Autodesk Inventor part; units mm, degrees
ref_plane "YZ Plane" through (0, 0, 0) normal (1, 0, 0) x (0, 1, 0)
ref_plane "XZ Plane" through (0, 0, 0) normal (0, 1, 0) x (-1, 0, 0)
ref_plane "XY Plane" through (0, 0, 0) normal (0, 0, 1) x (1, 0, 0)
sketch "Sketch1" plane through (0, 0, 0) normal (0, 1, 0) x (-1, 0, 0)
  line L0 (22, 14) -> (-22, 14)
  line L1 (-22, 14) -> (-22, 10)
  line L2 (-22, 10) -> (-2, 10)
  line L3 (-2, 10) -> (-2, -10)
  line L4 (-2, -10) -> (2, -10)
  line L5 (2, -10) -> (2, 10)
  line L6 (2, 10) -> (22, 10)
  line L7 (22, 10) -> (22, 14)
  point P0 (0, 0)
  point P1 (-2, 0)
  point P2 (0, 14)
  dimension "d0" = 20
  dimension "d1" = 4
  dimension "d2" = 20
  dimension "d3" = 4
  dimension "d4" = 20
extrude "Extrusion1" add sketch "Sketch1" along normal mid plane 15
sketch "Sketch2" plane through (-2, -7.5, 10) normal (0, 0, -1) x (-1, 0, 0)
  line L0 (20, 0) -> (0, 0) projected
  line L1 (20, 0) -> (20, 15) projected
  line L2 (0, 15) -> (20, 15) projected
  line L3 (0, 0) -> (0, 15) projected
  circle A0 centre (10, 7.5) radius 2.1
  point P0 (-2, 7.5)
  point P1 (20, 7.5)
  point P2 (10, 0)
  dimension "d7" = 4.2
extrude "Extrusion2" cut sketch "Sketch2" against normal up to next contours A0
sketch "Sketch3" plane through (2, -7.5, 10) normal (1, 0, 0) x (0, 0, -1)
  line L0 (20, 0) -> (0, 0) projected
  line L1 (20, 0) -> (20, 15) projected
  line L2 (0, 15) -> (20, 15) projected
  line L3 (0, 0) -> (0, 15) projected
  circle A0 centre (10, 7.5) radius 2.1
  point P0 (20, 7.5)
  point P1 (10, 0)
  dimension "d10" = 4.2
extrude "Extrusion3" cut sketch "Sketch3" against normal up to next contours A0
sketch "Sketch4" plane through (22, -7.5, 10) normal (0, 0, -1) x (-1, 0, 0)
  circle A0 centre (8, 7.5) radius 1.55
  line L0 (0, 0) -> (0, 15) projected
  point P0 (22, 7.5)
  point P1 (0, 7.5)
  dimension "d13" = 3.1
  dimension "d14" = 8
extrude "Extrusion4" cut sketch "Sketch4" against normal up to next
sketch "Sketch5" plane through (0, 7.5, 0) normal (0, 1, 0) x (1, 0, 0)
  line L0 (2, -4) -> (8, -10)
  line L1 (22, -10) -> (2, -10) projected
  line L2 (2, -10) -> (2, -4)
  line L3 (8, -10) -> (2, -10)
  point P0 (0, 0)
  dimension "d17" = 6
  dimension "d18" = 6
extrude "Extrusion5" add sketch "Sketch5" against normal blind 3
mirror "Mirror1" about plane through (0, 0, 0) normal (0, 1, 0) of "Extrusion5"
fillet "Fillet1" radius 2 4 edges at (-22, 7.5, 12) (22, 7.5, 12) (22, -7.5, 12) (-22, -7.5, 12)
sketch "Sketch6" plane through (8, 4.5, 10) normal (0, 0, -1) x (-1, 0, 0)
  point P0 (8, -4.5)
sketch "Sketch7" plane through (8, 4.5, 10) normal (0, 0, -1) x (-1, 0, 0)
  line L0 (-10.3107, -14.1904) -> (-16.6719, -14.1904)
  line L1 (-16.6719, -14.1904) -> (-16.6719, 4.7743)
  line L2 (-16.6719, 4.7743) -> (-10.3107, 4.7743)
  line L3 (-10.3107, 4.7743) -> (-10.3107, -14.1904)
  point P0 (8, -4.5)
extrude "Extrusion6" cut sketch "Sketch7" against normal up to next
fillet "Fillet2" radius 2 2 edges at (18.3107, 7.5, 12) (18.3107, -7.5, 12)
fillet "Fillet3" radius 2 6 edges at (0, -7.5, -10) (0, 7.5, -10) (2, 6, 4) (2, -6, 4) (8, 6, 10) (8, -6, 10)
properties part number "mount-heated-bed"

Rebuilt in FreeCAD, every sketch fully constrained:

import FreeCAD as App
import Part
import Sketcher
from FreeCAD import Vector
Q = App.Units.Quantity


def edges_at(feature, points):
    """Names of the edges that pass closest to the given points."""
    edges = feature.Shape.Edges
    near = lambda p: min(range(len(edges)), key=lambda i: edges[i].distToShape(Part.Vertex(*p))[0])
    return sorted({f"Edge{near(p) + 1}" for p in points})


def add_polygon(sketch, points):
    """Adds a closed chain of lines whose ends are joined by coincident constraints."""
    first, n = sketch.GeometryCount, len(points)
    for a, b in zip(points, points[1:] + points[:1]):
        sketch.addGeometry(Part.LineSegment(App.Vector(*a, 0), App.Vector(*b, 0)), False)
    for i in range(n):
        sketch.addConstraint(Sketcher.Constraint("Coincident", first + i, 2, first + (i + 1) % n, 1))

doc = App.newDocument("Part")
params = doc.addObject("Spreadsheet::Sheet", "Params")
for row, (alias, value) in enumerate([
    ("sketch1_width", "20 mm"),
    ("sketch1_width2", "4 mm"),
    ("pad1_length", "15 mm"),
    ("sketch2_diameter", "4.2 mm"),
    ("sketch3_diameter", "4.2 mm"),
    ("sketch4_diameter", "3.1 mm"),
    ("sketch5_width", "6 mm"),
    ("pad2_length", "3 mm"),
    ("fillet_radius", "2 mm"),
    ("fillet2_radius", "2 mm"),
    ("fillet3_radius", "2 mm"),
], start=1):
    params.set(f"A{row}", alias)
    params.set(f"B{row}", "=" + value)
    params.setAlias(f"B{row}", alias)

body = doc.addObject("PartDesign::Body", "Body")

# Sketch on XZ plane
sketch1 = body.newObject("Sketcher::SketchObject", "Sketch")
sketch1.AttachmentSupport = (doc.getObject("XZ_Plane"), [""])
sketch1.MapMode = "FlatFace"
add_polygon(sketch1, [(-22, 10), (-22, 14), (22, 14), (22, 10), (2, 10), (2, -10), (-2, -10), (-2, 10)])  # lines 0-7
sketch1.addConstraint(Sketcher.Constraint("Vertical", 0))
sketch1.addConstraint(Sketcher.Constraint("Horizontal", 1))
sketch1.addConstraint(Sketcher.Constraint("Vertical", 2))
sketch1.addConstraint(Sketcher.Constraint("Horizontal", 3))
sketch1.addConstraint(Sketcher.Constraint("Vertical", 4))
sketch1.addConstraint(Sketcher.Constraint("Horizontal", 5))
sketch1.addConstraint(Sketcher.Constraint("Vertical", 6))
sketch1.addConstraint(Sketcher.Constraint("Horizontal", 7))
sketch1.addConstraint(Sketcher.Constraint("Symmetric", 3, 2, 5, 2, -1, 1))
sketch1.addConstraint(Sketcher.Constraint("Symmetric", 2, 2, 7, 2, -2))
sketch1.addConstraint(Sketcher.Constraint("Equal", 5, 0))
sketch1.addConstraint(Sketcher.Constraint("Equal", 7, 4))
sketch1.addConstraint(Sketcher.Constraint("DistanceX", 3, 2, 3, 1, Q("20 mm")))
sketch1.addConstraint(Sketcher.Constraint("DistanceX", 5, 2, 5, 1, Q("4 mm")))
sketch1.setExpression("Constraints[20]", "Params.sketch1_width")
sketch1.setExpression("Constraints[21]", "Params.sketch1_width2")
pad1 = body.newObject("PartDesign::Pad", "Pad")
pad1.Profile = sketch1
pad1.setExpression("Length", "Params.pad1_length")
pad1.Midplane = True

# Sketch on XY plane
sketch2 = body.newObject("Sketcher::SketchObject", "Sketch001")
sketch2.AttachmentSupport = (doc.getObject("XY_Plane"), [""])
sketch2.MapMode = "FlatFace"
sketch2.AttachmentOffset = App.Placement(Vector(0, 0, 10), App.Rotation())
sketch2.addGeometry(Part.Circle(Vector(-12, 0, 0), Vector(0, 0, 1), 2.1), False)
sketch2.addConstraint(Sketcher.Constraint("PointOnObject", 0, 3, -1))
sketch2.addConstraint(Sketcher.Constraint("Diameter", 0, Q("4.2 mm")))
sketch2.addConstraint(Sketcher.Constraint("DistanceX", 0, 3, -1, 1, Q("12 mm")))
sketch2.setExpression("Constraints[1]", "Params.sketch2_diameter")
pocket1 = body.newObject("PartDesign::Pocket", "Pocket")
pocket1.Profile = sketch2
pocket1.Type = "UpToFirst"
pocket1.Reversed = True

# Sketch on YZ plane
sketch3 = body.newObject("Sketcher::SketchObject", "Sketch002")
sketch3.AttachmentSupport = (doc.getObject("YZ_Plane"), [""])
sketch3.MapMode = "FlatFace"
sketch3.AttachmentOffset = App.Placement(Vector(0, 0, 2), App.Rotation())
sketch3.addGeometry(Part.Circle(Vector(0, 0, 0), Vector(0, 0, 1), 2.1), False)
sketch3.addConstraint(Sketcher.Constraint("Coincident", 0, 3, -1, 1))
sketch3.addConstraint(Sketcher.Constraint("Diameter", 0, Q("4.2 mm")))
sketch3.setExpression("Constraints[1]", "Params.sketch3_diameter")
pocket2 = body.newObject("PartDesign::Pocket", "Pocket001")
pocket2.Profile = sketch3
pocket2.Type = "UpToFirst"

# Sketch on XY plane
sketch4 = body.newObject("Sketcher::SketchObject", "Sketch003")
sketch4.AttachmentSupport = (doc.getObject("XY_Plane"), [""])
sketch4.MapMode = "FlatFace"
sketch4.AttachmentOffset = App.Placement(Vector(0, 0, 10), App.Rotation())
sketch4.addGeometry(Part.Circle(Vector(14, 0, 0), Vector(0, 0, 1), 1.55), False)
sketch4.addConstraint(Sketcher.Constraint("PointOnObject", 0, 3, -1))
sketch4.addConstraint(Sketcher.Constraint("Diameter", 0, Q("3.1 mm")))
sketch4.addConstraint(Sketcher.Constraint("DistanceX", -1, 1, 0, 3, Q("14 mm")))
sketch4.setExpression("Constraints[1]", "Params.sketch4_diameter")
pocket3 = body.newObject("PartDesign::Pocket", "Pocket002")
pocket3.Profile = sketch4
pocket3.Type = "UpToFirst"
pocket3.Reversed = True

# Sketch on XZ plane
sketch5 = body.newObject("Sketcher::SketchObject", "Sketch004")
sketch5.AttachmentSupport = (doc.getObject("XZ_Plane"), [""])
sketch5.MapMode = "FlatFace"
sketch5.AttachmentOffset = App.Placement(Vector(0, 0, -7.5), App.Rotation())
add_polygon(sketch5, [(8, 10), (2, 4), (2, 10)])  # lines 0-2
sketch5.addConstraint(Sketcher.Constraint("Vertical", 1))
sketch5.addConstraint(Sketcher.Constraint("Horizontal", 2))
sketch5.addConstraint(Sketcher.Constraint("Equal", 2, 1))
sketch5.addConstraint(Sketcher.Constraint("DistanceX", 2, 1, 2, 2, Q("6 mm")))
sketch5.addConstraint(Sketcher.Constraint("DistanceX", -1, 1, 0, 2, Q("2 mm")))
sketch5.addConstraint(Sketcher.Constraint("DistanceY", -1, 1, 0, 2, Q("4 mm")))
sketch5.setExpression("Constraints[6]", "Params.sketch5_width")
pad2 = body.newObject("PartDesign::Pad", "Pad001")
pad2.Profile = sketch5
pad2.setExpression("Length", "Params.pad2_length")
doc.recompute()

mirrored = body.newObject("PartDesign::Mirrored", "Mirrored")
mirrored.Originals = [pad2]
mirrored.MirrorPlane = (doc.getObject("XZ_Plane"), [""])
body.Tip = mirrored
doc.recompute()

fillet = body.newObject("PartDesign::Fillet", "Fillet")
fillet.Base = (mirrored, edges_at(mirrored, [
    (-22, 7.5, 12),
    (22, 7.5, 12),
    (22, -7.5, 12),
    (-22, -7.5, 12),
]))
fillet.setExpression("Radius", "Params.fillet_radius")

# Sketch on XY plane
sketch6 = body.newObject("Sketcher::SketchObject", "Sketch005")
sketch6.AttachmentSupport = (doc.getObject("XY_Plane"), [""])
sketch6.MapMode = "FlatFace"
sketch6.AttachmentOffset = App.Placement(Vector(0, 0, 10), App.Rotation())
add_polygon(sketch6, [(24.6719, -9.6904), (18.3107, -9.6904), (18.3107, 9.2743), (24.6719, 9.2743)])  # lines 0-3
sketch6.addConstraint(Sketcher.Constraint("Horizontal", 0))
sketch6.addConstraint(Sketcher.Constraint("Vertical", 1))
sketch6.addConstraint(Sketcher.Constraint("Horizontal", 2))
sketch6.addConstraint(Sketcher.Constraint("Vertical", 3))
sketch6.addConstraint(Sketcher.Constraint("DistanceX", 0, 2, 0, 1, Q("6.3612 mm")))
sketch6.addConstraint(Sketcher.Constraint("DistanceY", 1, 1, 1, 2, Q("18.9647 mm")))
sketch6.addConstraint(Sketcher.Constraint("DistanceX", -1, 1, 2, 2, Q("24.672 mm")))
sketch6.addConstraint(Sketcher.Constraint("DistanceY", 0, 2, -1, 1, Q("9.6904 mm")))
pocket4 = body.newObject("PartDesign::Pocket", "Pocket003")
pocket4.Profile = sketch6
pocket4.Type = "UpToFirst"
pocket4.Reversed = True
doc.recompute()

fillet2 = body.newObject("PartDesign::Fillet", "Fillet001")
fillet2.Base = (pocket4, edges_at(pocket4, [(18.311, 7.5, 12), (18.311, -7.5, 12)]))
fillet2.setExpression("Radius", "Params.fillet2_radius")
doc.recompute()

fillet3 = body.newObject("PartDesign::Fillet", "Fillet002")
fillet3.Base = (fillet2, edges_at(fillet2, [
    (0, -7.5, -10),
    (0, 7.5, -10),
    (2, 6, 4),
    (2, -6, 4),
    (8, 6, 10),
    (8, -6, 10),
]))
fillet3.setExpression("Radius", "Params.fillet3_radius")

doc.recompute()
